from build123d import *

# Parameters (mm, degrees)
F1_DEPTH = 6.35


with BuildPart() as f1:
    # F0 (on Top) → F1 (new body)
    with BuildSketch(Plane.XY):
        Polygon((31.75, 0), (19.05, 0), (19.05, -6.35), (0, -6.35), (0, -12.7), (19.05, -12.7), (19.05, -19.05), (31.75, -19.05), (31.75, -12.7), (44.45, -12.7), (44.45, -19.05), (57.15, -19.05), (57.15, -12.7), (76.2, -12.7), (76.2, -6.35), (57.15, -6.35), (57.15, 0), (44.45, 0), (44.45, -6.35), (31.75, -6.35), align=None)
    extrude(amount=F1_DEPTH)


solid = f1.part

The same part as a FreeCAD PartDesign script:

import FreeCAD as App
import Part
import Sketcher
from FreeCAD import Vector
Q = App.Units.Quantity

doc = App.newDocument("Part")
body = doc.addObject("PartDesign::Body", "Body")

sketch1 = body.newObject("Sketcher::SketchObject", "Sketch")
sketch1.AttachmentSupport = (doc.getObject("XY_Plane"), [""])
sketch1.MapMode = "FlatFace"
sketch1.addGeometry(Part.LineSegment(Vector(32, 0, 0), Vector(19, 0, 0)), False)
sketch1.addGeometry(Part.LineSegment(Vector(19, 0, 0), Vector(19, -6, 0)), False)
sketch1.addGeometry(Part.LineSegment(Vector(19, -6, 0), Vector(0, -6, 0)), False)
sketch1.addGeometry(Part.LineSegment(Vector(0, -6, 0), Vector(0, -13, 0)), False)
sketch1.addGeometry(Part.LineSegment(Vector(0, -13, 0), Vector(19, -13, 0)), False)
sketch1.addGeometry(Part.LineSegment(Vector(19, -13, 0), Vector(19, -19, 0)), False)
sketch1.addGeometry(Part.LineSegment(Vector(19, -19, 0), Vector(32, -19, 0)), False)
sketch1.addGeometry(Part.LineSegment(Vector(32, -19, 0), Vector(32, -13, 0)), False)
sketch1.addGeometry(Part.LineSegment(Vector(32, -13, 0), Vector(44, -13, 0)), False)
sketch1.addGeometry(Part.LineSegment(Vector(44, -13, 0), Vector(44, -19, 0)), False)
sketch1.addGeometry(Part.LineSegment(Vector(44, -19, 0), Vector(57, -19, 0)), False)
sketch1.addGeometry(Part.LineSegment(Vector(57, -19, 0), Vector(57, -13, 0)), False)
sketch1.addGeometry(Part.LineSegment(Vector(57, -13, 0), Vector(76, -13, 0)), False)
sketch1.addGeometry(Part.LineSegment(Vector(76, -13, 0), Vector(76, -6, 0)), False)
sketch1.addGeometry(Part.LineSegment(Vector(76, -6, 0), Vector(57, -6, 0)), False)
sketch1.addGeometry(Part.LineSegment(Vector(57, -6, 0), Vector(57, 0, 0)), False)
sketch1.addGeometry(Part.LineSegment(Vector(57, 0, 0), Vector(44, 0, 0)), False)
sketch1.addGeometry(Part.LineSegment(Vector(44, 0, 0), Vector(44, -6, 0)), False)
sketch1.addGeometry(Part.LineSegment(Vector(44, -6, 0), Vector(32, -6, 0)), False)
sketch1.addGeometry(Part.LineSegment(Vector(32, -6, 0), Vector(32, 0, 0)), False)
sketch1.addConstraint(Sketcher.Constraint("Coincident", 0, 2, 1, 1))
sketch1.addConstraint(Sketcher.Constraint("Coincident", 1, 2, 2, 1))
sketch1.addConstraint(Sketcher.Constraint("Coincident", 2, 2, 3, 1))
sketch1.addConstraint(Sketcher.Constraint("Coincident", 3, 2, 4, 1))
sketch1.addConstraint(Sketcher.Constraint("Coincident", 4, 2, 5, 1))
sketch1.addConstraint(Sketcher.Constraint("Coincident", 5, 2, 6, 1))
sketch1.addConstraint(Sketcher.Constraint("Coincident", 6, 2, 7, 1))
sketch1.addConstraint(Sketcher.Constraint("Coincident", 7, 2, 8, 1))
sketch1.addConstraint(Sketcher.Constraint("Coincident", 8, 2, 9, 1))
sketch1.addConstraint(Sketcher.Constraint("Coincident", 9, 2, 10, 1))
sketch1.addConstraint(Sketcher.Constraint("Coincident", 10, 2, 11, 1))
sketch1.addConstraint(Sketcher.Constraint("Coincident", 11, 2, 12, 1))
sketch1.addConstraint(Sketcher.Constraint("Coincident", 12, 2, 13, 1))
sketch1.addConstraint(Sketcher.Constraint("Coincident", 13, 2, 14, 1))
sketch1.addConstraint(Sketcher.Constraint("Coincident", 14, 2, 15, 1))
sketch1.addConstraint(Sketcher.Constraint("Coincident", 15, 2, 16, 1))
sketch1.addConstraint(Sketcher.Constraint("Coincident", 16, 2, 17, 1))
sketch1.addConstraint(Sketcher.Constraint("Coincident", 17, 2, 18, 1))
sketch1.addConstraint(Sketcher.Constraint("Coincident", 18, 2, 19, 1))
sketch1.addConstraint(Sketcher.Constraint("Coincident", 19, 2, 0, 1))
sketch1.addConstraint(Sketcher.Constraint("Horizontal", 0))
sketch1.addConstraint(Sketcher.Constraint("Vertical", 1))
sketch1.addConstraint(Sketcher.Constraint("Horizontal", 2))
sketch1.addConstraint(Sketcher.Constraint("Vertical", 3))
sketch1.addConstraint(Sketcher.Constraint("Horizontal", 4))
sketch1.addConstraint(Sketcher.Constraint("Vertical", 5))
sketch1.addConstraint(Sketcher.Constraint("Horizontal", 6))
sketch1.addConstraint(Sketcher.Constraint("Vertical", 7))
sketch1.addConstraint(Sketcher.Constraint("Horizontal", 8))
sketch1.addConstraint(Sketcher.Constraint("Vertical", 9))
sketch1.addConstraint(Sketcher.Constraint("Horizontal", 10))
sketch1.addConstraint(Sketcher.Constraint("Vertical", 11))
sketch1.addConstraint(Sketcher.Constraint("Horizontal", 12))
sketch1.addConstraint(Sketcher.Constraint("Vertical", 13))
sketch1.addConstraint(Sketcher.Constraint("Horizontal", 14))
sketch1.addConstraint(Sketcher.Constraint("Vertical", 15))
sketch1.addConstraint(Sketcher.Constraint("Horizontal", 16))
sketch1.addConstraint(Sketcher.Constraint("Vertical", 17))
sketch1.addConstraint(Sketcher.Constraint("Horizontal", 18))
sketch1.addConstraint(Sketcher.Constraint("Vertical", 19))
sketch1.addConstraint(Sketcher.Constraint("PointOnObject", 0, 2, -1))
sketch1.addConstraint(Sketcher.Constraint("PointOnObject", 2, 2, -2))
sketch1.addConstraint(Sketcher.Constraint("PointOnObject", 15, 2, -1))
sketch1.addConstraint(Sketcher.Constraint("Horizontal", 4, 2, 7, 2))
sketch1.addConstraint(Sketcher.Constraint("Horizontal", 6, 2, 9, 2))
sketch1.addConstraint(Sketcher.Constraint("Horizontal", 8, 2, 11, 2))
sketch1.addConstraint(Sketcher.Constraint("Horizontal", 2, 2, 13, 2))
sketch1.addConstraint(Sketcher.Constraint("Horizontal", 14, 2, 17, 2))
sketch1.addConstraint(Sketcher.Constraint("Vertical", 1, 2, 4, 2))
sketch1.addConstraint(Sketcher.Constraint("Vertical", 11, 2, 14, 2))
sketch1.addConstraint(Sketcher.Constraint("Vertical", 9, 2, 16, 2))
sketch1.addConstraint(Sketcher.Constraint("Vertical", 7, 2, 18, 2))
sketch1.addConstraint(Sketcher.Constraint("Equal", 6, 8))
sketch1.addConstraint(Sketcher.Constraint("Equal", 8, 10))
sketch1.addConstraint(Sketcher.Constraint("Equal", 4, 12))
sketch1.addConstraint(Sketcher.Constraint("Equal", 1, 3))
sketch1.addConstraint(Sketcher.Constraint("Equal", 3, 5))
sketch1.addConstraint(Sketcher.Constraint("DistanceX", 0, 2, 0, 1, Q("0.5 in")))
sketch1.addConstraint(Sketcher.Constraint("DistanceX", -1, 1, 12, 2, Q("3 in")))
sketch1.addConstraint(Sketcher.Constraint("DistanceY", 1, 2, 1, 1, Q("0.25 in")))
pad1 = body.newObject("PartDesign::Pad", "Pad")
pad1.Profile = sketch1
pad1.Length = Q("0.25 in")

doc.recompute()
